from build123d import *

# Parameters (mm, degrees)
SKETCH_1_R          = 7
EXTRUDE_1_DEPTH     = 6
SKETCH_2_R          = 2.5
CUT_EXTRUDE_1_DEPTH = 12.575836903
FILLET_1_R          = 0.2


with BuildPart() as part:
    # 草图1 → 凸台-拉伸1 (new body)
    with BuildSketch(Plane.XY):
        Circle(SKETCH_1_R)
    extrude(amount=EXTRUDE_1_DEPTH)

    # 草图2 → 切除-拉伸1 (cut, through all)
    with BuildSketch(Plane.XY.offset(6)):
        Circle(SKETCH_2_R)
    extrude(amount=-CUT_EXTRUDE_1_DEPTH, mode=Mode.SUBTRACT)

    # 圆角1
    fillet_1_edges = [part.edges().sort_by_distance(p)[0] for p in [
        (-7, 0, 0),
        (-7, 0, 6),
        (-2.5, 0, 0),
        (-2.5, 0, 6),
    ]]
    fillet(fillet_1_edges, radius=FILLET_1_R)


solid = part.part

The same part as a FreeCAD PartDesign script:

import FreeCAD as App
import Part
import Sketcher


def edges_at(feature, points):
    """Names of the edges that pass closest to the given points."""
    edges = feature.Shape.Edges
    near = lambda p: min(range(len(edges)), key=lambda i: edges[i].distToShape(Part.Vertex(*p))[0])
    return sorted({f"Edge{near(p) + 1}" for p in points})

doc = App.newDocument("Part")
body = doc.addObject("PartDesign::Body", "Body")

# Sketch on XY plane
sketch1 = body.newObject("Sketcher::SketchObject", "Sketch")
sketch1.AttachmentSupport = (doc.getObject("XY_Plane"), [""])
sketch1.MapMode = "FlatFace"
sketch1.addGeometry(Part.Circle(App.Vector(0, 0, 0), App.Vector(0, 0, 1), 7), False)
sketch1.addConstraint(Sketcher.Constraint("Coincident", 0, 3, -1, 1))
sketch1.addConstraint(Sketcher.Constraint("Diameter", 0, 14.0))
pad1 = body.newObject("PartDesign::Pad", "Pad")
pad1.Profile = sketch1
pad1.Length = 6

# Sketch on XY plane
sketch2 = body.newObject("Sketcher::SketchObject", "Sketch001")
sketch2.AttachmentSupport = (doc.getObject("XY_Plane"), [""])
sketch2.MapMode = "FlatFace"
sketch2.AttachmentOffset = App.Placement(App.Vector(0, 0, 6), App.Rotation())
sketch2.addGeometry(Part.Circle(App.Vector(0, 0, 0), App.Vector(0, 0, 1), 2.5), False)
sketch2.addConstraint(Sketcher.Constraint("Coincident", 0, 3, -1, 1))
sketch2.addConstraint(Sketcher.Constraint("Diameter", 0, 5.0))
pocket1 = body.newObject("PartDesign::Pocket", "Pocket")
pocket1.Profile = sketch2
pocket1.Type = "ThroughAll"
doc.recompute()

fillet = body.newObject("PartDesign::Fillet", "Fillet")
fillet.Base = (pocket1, edges_at(pocket1, [
    (-7, 0, 0),
    (-7, 0, 6),
    (-2.5, 0, 0),
    (-2.5, 0, 6),
]))
fillet.Radius = 0.2

doc.recompute()
